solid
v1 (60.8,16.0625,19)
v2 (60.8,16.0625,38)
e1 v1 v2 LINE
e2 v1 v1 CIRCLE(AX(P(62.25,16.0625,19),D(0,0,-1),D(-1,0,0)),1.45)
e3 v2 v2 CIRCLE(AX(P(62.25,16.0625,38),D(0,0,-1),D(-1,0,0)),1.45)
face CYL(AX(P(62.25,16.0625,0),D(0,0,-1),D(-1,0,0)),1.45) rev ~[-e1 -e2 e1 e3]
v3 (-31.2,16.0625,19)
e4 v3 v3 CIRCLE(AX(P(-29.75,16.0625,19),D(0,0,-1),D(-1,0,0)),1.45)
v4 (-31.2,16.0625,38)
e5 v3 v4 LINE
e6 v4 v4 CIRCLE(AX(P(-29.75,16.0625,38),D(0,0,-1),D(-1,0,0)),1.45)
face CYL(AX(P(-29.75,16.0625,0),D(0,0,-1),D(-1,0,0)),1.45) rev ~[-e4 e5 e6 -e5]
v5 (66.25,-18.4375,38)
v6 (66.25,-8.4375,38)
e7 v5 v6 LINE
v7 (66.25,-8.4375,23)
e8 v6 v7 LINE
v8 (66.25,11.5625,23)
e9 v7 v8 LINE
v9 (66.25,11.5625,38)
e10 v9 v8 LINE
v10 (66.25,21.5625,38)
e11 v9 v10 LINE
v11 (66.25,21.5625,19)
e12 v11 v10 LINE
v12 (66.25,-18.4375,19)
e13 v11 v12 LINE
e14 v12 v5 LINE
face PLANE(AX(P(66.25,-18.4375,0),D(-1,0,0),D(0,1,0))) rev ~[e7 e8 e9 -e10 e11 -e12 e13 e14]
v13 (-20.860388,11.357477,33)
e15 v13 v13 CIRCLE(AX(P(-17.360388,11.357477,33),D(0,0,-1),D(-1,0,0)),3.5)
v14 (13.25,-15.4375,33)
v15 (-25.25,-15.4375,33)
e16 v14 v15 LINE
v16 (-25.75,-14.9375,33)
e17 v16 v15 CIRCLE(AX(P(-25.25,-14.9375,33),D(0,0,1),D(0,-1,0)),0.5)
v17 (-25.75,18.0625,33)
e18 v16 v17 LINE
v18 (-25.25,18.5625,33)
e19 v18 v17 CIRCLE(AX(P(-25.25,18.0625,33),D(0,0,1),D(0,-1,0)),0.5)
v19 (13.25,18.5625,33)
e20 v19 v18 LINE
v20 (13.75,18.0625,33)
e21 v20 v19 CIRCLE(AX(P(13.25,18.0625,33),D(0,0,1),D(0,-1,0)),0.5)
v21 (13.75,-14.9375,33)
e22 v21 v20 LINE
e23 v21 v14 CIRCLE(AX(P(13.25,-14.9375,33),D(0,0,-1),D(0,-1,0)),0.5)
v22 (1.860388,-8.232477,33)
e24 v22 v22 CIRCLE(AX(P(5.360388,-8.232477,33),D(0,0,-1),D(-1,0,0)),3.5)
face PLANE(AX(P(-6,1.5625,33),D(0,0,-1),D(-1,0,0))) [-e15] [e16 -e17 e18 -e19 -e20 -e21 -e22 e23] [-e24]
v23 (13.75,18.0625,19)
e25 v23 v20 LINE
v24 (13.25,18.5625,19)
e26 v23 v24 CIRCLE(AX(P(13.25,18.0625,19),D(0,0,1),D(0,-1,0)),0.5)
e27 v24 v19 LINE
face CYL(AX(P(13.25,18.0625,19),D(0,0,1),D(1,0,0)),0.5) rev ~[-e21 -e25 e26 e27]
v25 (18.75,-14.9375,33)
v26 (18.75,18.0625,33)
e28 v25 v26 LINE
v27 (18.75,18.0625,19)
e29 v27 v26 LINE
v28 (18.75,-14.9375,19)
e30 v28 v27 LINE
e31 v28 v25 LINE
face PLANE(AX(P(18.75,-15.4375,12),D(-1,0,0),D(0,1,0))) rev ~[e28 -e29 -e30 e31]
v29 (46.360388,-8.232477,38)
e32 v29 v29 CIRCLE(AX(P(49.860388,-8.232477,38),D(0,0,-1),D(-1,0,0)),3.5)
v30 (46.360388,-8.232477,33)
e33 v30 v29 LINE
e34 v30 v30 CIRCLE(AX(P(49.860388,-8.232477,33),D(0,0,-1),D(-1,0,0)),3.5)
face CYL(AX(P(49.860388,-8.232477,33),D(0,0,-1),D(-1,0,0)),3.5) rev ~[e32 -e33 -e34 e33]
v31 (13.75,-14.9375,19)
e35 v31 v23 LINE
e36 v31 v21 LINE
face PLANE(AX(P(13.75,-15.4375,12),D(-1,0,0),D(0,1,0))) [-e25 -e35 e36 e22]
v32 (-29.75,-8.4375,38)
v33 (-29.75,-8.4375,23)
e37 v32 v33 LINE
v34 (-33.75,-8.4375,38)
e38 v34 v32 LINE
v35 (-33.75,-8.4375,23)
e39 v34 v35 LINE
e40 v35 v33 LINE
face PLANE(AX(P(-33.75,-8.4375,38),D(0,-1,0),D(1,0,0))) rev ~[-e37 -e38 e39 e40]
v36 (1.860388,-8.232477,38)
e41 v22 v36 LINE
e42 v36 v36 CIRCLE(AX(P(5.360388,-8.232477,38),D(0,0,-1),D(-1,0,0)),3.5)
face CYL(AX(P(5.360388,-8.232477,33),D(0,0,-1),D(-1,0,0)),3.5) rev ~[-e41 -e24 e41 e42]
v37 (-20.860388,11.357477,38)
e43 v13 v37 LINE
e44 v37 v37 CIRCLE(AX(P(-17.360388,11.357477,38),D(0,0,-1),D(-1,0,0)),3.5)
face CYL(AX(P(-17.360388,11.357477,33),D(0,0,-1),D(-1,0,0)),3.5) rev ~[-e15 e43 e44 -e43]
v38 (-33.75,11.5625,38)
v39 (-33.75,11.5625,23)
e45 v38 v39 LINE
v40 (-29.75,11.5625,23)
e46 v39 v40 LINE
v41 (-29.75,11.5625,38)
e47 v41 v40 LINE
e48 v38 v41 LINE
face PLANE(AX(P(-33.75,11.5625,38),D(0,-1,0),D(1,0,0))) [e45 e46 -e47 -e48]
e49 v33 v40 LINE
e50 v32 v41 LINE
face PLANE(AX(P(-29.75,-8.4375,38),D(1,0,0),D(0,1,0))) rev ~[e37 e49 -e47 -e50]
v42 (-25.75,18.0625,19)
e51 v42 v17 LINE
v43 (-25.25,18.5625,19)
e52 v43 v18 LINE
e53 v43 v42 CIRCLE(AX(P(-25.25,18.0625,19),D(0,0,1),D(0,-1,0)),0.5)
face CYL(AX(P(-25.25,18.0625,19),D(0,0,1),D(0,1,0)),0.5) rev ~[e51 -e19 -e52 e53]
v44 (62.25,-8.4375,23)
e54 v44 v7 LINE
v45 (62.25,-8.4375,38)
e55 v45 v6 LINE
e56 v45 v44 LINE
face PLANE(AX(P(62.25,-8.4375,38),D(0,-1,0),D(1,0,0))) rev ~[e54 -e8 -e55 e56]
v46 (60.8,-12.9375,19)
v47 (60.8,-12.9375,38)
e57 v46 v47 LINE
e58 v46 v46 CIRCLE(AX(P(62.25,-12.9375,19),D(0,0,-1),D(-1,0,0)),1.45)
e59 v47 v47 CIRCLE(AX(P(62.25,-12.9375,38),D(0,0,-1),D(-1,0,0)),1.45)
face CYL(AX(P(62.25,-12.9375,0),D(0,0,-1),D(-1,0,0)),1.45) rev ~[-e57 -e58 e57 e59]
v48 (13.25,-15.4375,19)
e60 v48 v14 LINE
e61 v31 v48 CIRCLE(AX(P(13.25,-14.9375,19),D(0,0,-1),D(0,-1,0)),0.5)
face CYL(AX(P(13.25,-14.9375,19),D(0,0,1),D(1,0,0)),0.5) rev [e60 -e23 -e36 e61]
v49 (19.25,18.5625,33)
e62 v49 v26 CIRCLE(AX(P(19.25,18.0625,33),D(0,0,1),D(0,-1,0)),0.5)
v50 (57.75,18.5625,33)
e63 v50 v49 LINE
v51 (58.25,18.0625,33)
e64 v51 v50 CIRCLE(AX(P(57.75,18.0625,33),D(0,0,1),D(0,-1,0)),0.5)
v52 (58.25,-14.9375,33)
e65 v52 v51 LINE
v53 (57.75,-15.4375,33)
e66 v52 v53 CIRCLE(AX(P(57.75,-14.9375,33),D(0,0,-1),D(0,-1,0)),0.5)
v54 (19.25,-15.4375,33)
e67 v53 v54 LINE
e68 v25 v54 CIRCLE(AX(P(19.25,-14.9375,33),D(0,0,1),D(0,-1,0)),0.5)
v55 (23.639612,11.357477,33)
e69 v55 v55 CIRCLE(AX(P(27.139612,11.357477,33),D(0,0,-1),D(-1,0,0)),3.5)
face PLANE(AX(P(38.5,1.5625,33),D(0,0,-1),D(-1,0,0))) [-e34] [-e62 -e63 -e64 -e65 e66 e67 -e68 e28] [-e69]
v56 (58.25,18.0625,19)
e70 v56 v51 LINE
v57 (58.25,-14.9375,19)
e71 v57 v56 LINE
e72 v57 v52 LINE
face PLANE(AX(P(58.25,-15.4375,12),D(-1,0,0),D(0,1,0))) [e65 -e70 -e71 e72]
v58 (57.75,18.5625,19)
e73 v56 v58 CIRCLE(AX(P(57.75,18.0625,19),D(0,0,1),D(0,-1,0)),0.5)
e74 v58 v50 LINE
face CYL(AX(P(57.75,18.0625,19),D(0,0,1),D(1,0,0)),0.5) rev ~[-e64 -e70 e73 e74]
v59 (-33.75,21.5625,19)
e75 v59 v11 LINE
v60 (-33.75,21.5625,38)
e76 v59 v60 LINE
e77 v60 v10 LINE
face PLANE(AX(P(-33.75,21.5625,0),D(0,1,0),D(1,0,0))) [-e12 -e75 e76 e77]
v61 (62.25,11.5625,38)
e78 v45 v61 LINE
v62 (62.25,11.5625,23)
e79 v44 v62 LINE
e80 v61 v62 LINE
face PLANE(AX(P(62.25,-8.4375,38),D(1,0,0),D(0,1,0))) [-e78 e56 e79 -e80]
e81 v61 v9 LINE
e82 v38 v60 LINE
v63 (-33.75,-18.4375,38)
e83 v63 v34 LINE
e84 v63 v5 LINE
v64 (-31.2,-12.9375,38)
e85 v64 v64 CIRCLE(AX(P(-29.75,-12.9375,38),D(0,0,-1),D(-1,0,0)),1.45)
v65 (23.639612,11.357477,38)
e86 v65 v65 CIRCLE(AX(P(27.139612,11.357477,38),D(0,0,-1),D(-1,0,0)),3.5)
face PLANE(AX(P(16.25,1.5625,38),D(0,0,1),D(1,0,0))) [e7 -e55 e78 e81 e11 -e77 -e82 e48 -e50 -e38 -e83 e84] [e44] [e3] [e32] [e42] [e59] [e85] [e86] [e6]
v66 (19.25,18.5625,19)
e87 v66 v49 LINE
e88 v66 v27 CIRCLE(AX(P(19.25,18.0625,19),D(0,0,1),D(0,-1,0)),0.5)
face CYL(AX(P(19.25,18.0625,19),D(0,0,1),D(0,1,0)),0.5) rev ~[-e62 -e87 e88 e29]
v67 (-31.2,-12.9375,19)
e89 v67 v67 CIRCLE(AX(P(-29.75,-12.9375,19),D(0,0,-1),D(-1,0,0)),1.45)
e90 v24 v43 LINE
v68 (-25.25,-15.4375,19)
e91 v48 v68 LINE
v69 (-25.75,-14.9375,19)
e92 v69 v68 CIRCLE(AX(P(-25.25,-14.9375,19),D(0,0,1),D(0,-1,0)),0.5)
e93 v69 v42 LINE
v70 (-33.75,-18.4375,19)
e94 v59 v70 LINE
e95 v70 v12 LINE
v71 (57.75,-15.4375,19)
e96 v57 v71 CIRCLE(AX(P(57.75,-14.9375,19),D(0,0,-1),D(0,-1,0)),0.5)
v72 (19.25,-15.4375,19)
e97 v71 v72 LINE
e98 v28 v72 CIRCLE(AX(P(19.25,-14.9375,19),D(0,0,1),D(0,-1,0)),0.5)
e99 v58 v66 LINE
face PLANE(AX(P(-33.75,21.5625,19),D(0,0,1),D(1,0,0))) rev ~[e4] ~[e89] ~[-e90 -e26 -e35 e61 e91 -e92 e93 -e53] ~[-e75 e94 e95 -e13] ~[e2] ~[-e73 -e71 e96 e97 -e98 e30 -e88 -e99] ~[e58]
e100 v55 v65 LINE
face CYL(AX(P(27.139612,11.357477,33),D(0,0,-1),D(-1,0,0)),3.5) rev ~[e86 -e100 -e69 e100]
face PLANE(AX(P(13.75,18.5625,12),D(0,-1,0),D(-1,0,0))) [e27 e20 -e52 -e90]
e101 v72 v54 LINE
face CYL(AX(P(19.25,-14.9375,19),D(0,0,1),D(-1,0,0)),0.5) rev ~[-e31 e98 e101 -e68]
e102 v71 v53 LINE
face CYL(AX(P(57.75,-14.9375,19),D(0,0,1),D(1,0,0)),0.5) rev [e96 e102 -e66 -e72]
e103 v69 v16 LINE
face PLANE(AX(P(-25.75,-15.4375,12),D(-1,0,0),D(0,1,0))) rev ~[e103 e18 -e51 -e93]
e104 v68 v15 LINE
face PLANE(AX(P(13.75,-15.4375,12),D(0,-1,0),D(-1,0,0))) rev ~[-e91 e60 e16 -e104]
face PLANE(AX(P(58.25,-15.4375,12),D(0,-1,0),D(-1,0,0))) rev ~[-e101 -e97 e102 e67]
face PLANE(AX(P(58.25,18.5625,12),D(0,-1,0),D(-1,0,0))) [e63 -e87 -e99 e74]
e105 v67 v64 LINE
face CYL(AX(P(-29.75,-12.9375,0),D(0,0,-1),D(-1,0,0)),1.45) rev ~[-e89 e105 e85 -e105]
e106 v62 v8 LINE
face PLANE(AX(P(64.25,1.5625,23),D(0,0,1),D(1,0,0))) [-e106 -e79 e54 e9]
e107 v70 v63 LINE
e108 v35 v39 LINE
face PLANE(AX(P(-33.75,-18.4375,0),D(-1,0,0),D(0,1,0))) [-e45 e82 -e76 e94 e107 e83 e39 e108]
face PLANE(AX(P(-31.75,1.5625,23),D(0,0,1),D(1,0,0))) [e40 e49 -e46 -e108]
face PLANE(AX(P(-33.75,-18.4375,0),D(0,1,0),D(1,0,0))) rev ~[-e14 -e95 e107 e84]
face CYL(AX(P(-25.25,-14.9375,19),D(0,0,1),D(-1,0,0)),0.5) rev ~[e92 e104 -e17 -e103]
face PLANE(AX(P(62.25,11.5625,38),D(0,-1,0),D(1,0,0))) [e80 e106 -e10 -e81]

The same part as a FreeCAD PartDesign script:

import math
import FreeCAD as App
import Part
import Sketcher

V = App.Vector
Q = App.Units.Quantity


def edges_at(feature, points):
    """Names of the edges that pass closest to the given points."""
    edges = feature.Shape.Edges
    near = lambda p: min(range(len(edges)), key=lambda i: edges[i].distToShape(Part.Vertex(*p))[0])
    return sorted({f"Edge{near(p) + 1}" for p in points})


def add_polygon(sketch, points):
    """Adds a closed chain of lines whose ends are joined by coincident constraints."""
    first, n = sketch.GeometryCount, len(points)
    for a, b in zip(points, points[1:] + points[:1]):
        sketch.addGeometry(Part.LineSegment(App.Vector(*a, 0), App.Vector(*b, 0)), False)
    for i in range(n):
        sketch.addConstraint(Sketcher.Constraint("Coincident", first + i, 2, first + (i + 1) % n, 1))

doc = App.newDocument("Part")
body = doc.addObject("PartDesign::Body", "Body")

# Sketch on XY plane
sketch1 = doc.addObject("Sketcher::SketchObject", "Sketch")
body.addObject(sketch1)
sketch1.AttachmentSupport = (doc.XY_Plane, [""])
sketch1.MapMode = "FlatFace"
add_polygon(sketch1, [(-33.75, 21.5625), (-33.75, -18.4375), (66.25, -18.4375), (66.25, 21.5625)])  # lines 0-3
sketch1.addConstraint([
    Sketcher.Constraint("Vertical", 0),
    Sketcher.Constraint("Horizontal", 1),
    Sketcher.Constraint("Vertical", 2),
    Sketcher.Constraint("Horizontal", 3),
    Sketcher.Constraint("DistanceX", 1, 1, 1, 2, Q("100 mm")),
    Sketcher.Constraint("DistanceY", 0, 2, 0, 1, Q("40 mm")),
    Sketcher.Constraint("DistanceX", 0, 2, -1, 1, Q("33.75 mm")),
    Sketcher.Constraint("DistanceY", 0, 2, -1, 1, Q("18.4375 mm")),
])
pad1 = doc.addObject("PartDesign::Pad", "Pad")
body.addObject(pad1)
pad1.Profile = sketch1
pad1.Length = 38

# Sketch on XY plane
sketch2 = doc.addObject("Sketcher::SketchObject", "Sketch001")
body.addObject(sketch2)
sketch2.AttachmentSupport = (doc.XY_Plane, [""])
sketch2.MapMode = "FlatFace"
sketch2.AttachmentOffset = App.Placement(V(0, 0, 12), App.Rotation())
add_polygon(sketch2, [(58.25, 18.5625), (58.25, -15.4375), (18.75, -15.4375), (18.75, 18.5625)])  # lines 0-3
add_polygon(sketch2, [(13.75, 18.5625), (13.75, -15.4375), (-25.75, -15.4375), (-25.75, 18.5625)])  # lines 4-7
sketch2.addConstraint([
    Sketcher.Constraint("Vertical", 0),
    Sketcher.Constraint("Horizontal", 1),
    Sketcher.Constraint("Vertical", 2),
    Sketcher.Constraint("Horizontal", 3),
    Sketcher.Constraint("Vertical", 4),
    Sketcher.Constraint("Horizontal", 5),
    Sketcher.Constraint("Vertical", 6),
    Sketcher.Constraint("Horizontal", 7),
    Sketcher.Constraint("Horizontal", 1, 2, 4, 2),
    Sketcher.Constraint("Horizontal", 3, 2, 6, 2),
    Sketcher.Constraint("Equal", 3, 5),
    Sketcher.Constraint("DistanceY", 0, 2, 0, 1, Q("34 mm")),
    Sketcher.Constraint("DistanceX", 1, 2, 1, 1, Q("39.5 mm")),
    Sketcher.Constraint("DistanceX", 4, 2, 1, 2, Q("5 mm")),
    Sketcher.Constraint("DistanceX", -1, 1, 0, 2, Q("58.25 mm")),
    Sketcher.Constraint("DistanceY", 0, 2, -1, 1, Q("15.4375 mm")),
])
pocket1 = doc.addObject("PartDesign::Pocket", "Pocket")
body.addObject(pocket1)
pocket1.Profile = sketch2
pocket1.Length = 21
pocket1.Reversed = True

# Sketch on XY plane
sketch3 = doc.addObject("Sketcher::SketchObject", "Sketch002")
body.addObject(sketch3)
sketch3.AttachmentSupport = (doc.XY_Plane, [""])
sketch3.MapMode = "FlatFace"
sketch3.addGeometry([
    Part.ArcOfCircle(Part.Circle(V(14.794365, 41.486978, 0), V(0, 0, 1), 58.962482), math.radians(-132.550337), math.radians(-42.550337)),
    Part.ArcOfCircle(Part.Circle(V(-19.615092, 4.001815, 0), V(0, 0, 1), 8.078809), math.radians(47.449663), math.radians(227.449663)),
    Part.ArcOfCircle(Part.Circle(V(14.794365, 41.486978, 0), V(0, 0, 1), 42.804864), math.radians(-132.550337), math.radians(-42.550337)),
    Part.ArcOfCircle(Part.Circle(V(52.279528, 7.077521, 0), V(0, 0, 1), 8.078809), math.radians(-42.550337), math.radians(137.449663)),
], False)
sketch3.addConstraint([
    Sketcher.Constraint("Tangent", 0, 1, 1, 2),
    Sketcher.Constraint("Tangent", 1, 1, 2, 1),
    Sketcher.Constraint("Tangent", 2, 2, 3, 2),
    Sketcher.Constraint("Tangent", 3, 1, 0, 2),
    Sketcher.Constraint("Coincident", 2, 3, 0, 3),
    Sketcher.Constraint("Radius", 0, Q("58.962482 mm")),
    Sketcher.Constraint("Radius", 1, Q("8.078809 mm")),
    Sketcher.Constraint("DistanceX", 1, 1, 2, 2, Q("60.4799 mm")),
    Sketcher.Constraint("DistanceY", 1, 3, 2, 2, Q("8.5389 mm")),
    Sketcher.Constraint("DistanceY", -1, 1, 3, 3, Q("7.077521 mm")),
    Sketcher.Constraint("DistanceX", -1, 1, 0, 3, Q("14.794365 mm")),
])
pocket2 = doc.addObject("PartDesign::Pocket", "Pocket001")
body.addObject(pocket2)
pocket2.Profile = sketch3
pocket2.Length = 9
pocket2.Reversed = True

# Sketch on XY plane
sketch4 = doc.addObject("Sketcher::SketchObject", "Sketch003")
body.addObject(sketch4)
sketch4.AttachmentSupport = (doc.XY_Plane, [""])
sketch4.MapMode = "FlatFace"
sketch4.addGeometry(Part.Circle(V(62.25, 16.0625, 0), V(0, 0, 1), 1.45), False)
sketch4.addConstraint([
    Sketcher.Constraint("Diameter", 0, Q("2.9 mm")),
    Sketcher.Constraint("DistanceX", -1, 1, 0, 3, Q("62.25 mm")),
    Sketcher.Constraint("DistanceY", -1, 1, 0, 3, Q("16.0625 mm")),
])
pocket3 = doc.addObject("PartDesign::Pocket", "Pocket002")
body.addObject(pocket3)
pocket3.Profile = sketch4
pocket3.Type = "UpToFirst"
pocket3.Reversed = True

# Sketch on XY plane
sketch5 = doc.addObject("Sketcher::SketchObject", "Sketch004")
body.addObject(sketch5)
sketch5.AttachmentSupport = (doc.XY_Plane, [""])
sketch5.MapMode = "FlatFace"
sketch5.addGeometry(Part.Circle(V(62.25, -12.9375, 0), V(0, 0, 1), 1.45), False)
sketch5.addConstraint([
    Sketcher.Constraint("Diameter", 0, Q("2.9 mm")),
    Sketcher.Constraint("DistanceX", -1, 1, 0, 3, Q("62.25 mm")),
    Sketcher.Constraint("DistanceY", 0, 3, -1, 1, Q("12.9375 mm")),
])
pocket4 = doc.addObject("PartDesign::Pocket", "Pocket003")
body.addObject(pocket4)
pocket4.Profile = sketch5
pocket4.Type = "UpToFirst"
pocket4.Reversed = True

# Sketch on XY plane
sketch6 = doc.addObject("Sketcher::SketchObject", "Sketch005")
body.addObject(sketch6)
sketch6.AttachmentSupport = (doc.XY_Plane, [""])
sketch6.MapMode = "FlatFace"
sketch6.addGeometry(Part.Circle(V(-29.75, 16.0625, 0), V(0, 0, 1), 1.45), False)
sketch6.addConstraint([
    Sketcher.Constraint("Diameter", 0, Q("2.9 mm")),
    Sketcher.Constraint("DistanceX", 0, 3, -1, 1, Q("29.75 mm")),
    Sketcher.Constraint("DistanceY", -1, 1, 0, 3, Q("16.0625 mm")),
])
pocket5 = doc.addObject("PartDesign::Pocket", "Pocket004")
body.addObject(pocket5)
pocket5.Profile = sketch6
pocket5.Type = "UpToFirst"
pocket5.Reversed = True

# Sketch on XY plane
sketch7 = doc.addObject("Sketcher::SketchObject", "Sketch006")
body.addObject(sketch7)
sketch7.AttachmentSupport = (doc.XY_Plane, [""])
sketch7.MapMode = "FlatFace"
sketch7.addGeometry(Part.Circle(V(-29.75, -12.9375, 0), V(0, 0, 1), 1.45), False)
sketch7.addConstraint([
    Sketcher.Constraint("Diameter", 0, Q("2.9 mm")),
    Sketcher.Constraint("DistanceX", 0, 3, -1, 1, Q("29.75 mm")),
    Sketcher.Constraint("DistanceY", 0, 3, -1, 1, Q("12.9375 mm")),
])
pocket6 = doc.addObject("PartDesign::Pocket", "Pocket005")
body.addObject(pocket6)
pocket6.Profile = sketch7
pocket6.Type = "UpToFirst"
pocket6.Reversed = True

# Sketch on XZ plane
sketch8 = doc.addObject("Sketcher::SketchObject", "Sketch007")
body.addObject(sketch8)
sketch8.AttachmentSupport = (doc.XZ_Plane, [""])
sketch8.MapMode = "FlatFace"
sketch8.AttachmentOffset = App.Placement(V(0, 0, -21.5625), App.Rotation())
add_polygon(sketch8, [(-33.75, 0), (-33.75, 19), (66.25, 19), (66.25, 0)])  # lines 0-3
sketch8.addConstraint([
    Sketcher.Constraint("Vertical", 0),
    Sketcher.Constraint("Horizontal", 1),
    Sketcher.Constraint("Vertical", 2),
    Sketcher.Constraint("Horizontal", 3),
    Sketcher.Constraint("PointOnObject", 2, 2, -1),
    Sketcher.Constraint("DistanceX", 1, 1, 1, 2, Q("100 mm")),
    Sketcher.Constraint("DistanceY", 0, 1, 0, 2, Q("19 mm")),
    Sketcher.Constraint("DistanceX", 0, 2, -1, 1, Q("33.75 mm")),
])
pocket7 = doc.addObject("PartDesign::Pocket", "Pocket006")
body.addObject(pocket7)
pocket7.Profile = sketch8
pocket7.Type = "ThroughAll"
pocket7.Reversed = True
doc.recompute()

fillet = doc.addObject("PartDesign::Fillet", "Fillet")
body.addObject(fillet)
fillet.Base = (pocket7, edges_at(pocket7, [
    (58.25, 18.562, 26),
    (18.75, 18.562, 26),
    (18.75, -15.438, 26),
    (58.25, -15.438, 26),
    (13.75, 18.562, 26),
    (-25.75, 18.562, 26),
    (-25.75, -15.438, 26),
    (13.75, -15.438, 26),
]))
fillet.Radius = 0.5

# Sketch on XY plane
sketch9 = doc.addObject("Sketcher::SketchObject", "Sketch008")
body.addObject(sketch9)
sketch9.AttachmentSupport = (doc.XY_Plane, [""])
sketch9.MapMode = "FlatFace"
sketch9.AttachmentOffset = App.Placement(V(0, 0, 33), App.Rotation())
sketch9.addGeometry(Part.Circle(V(49.860388, -8.232477, 0), V(0, 0, 1), 3.5), False)
sketch9.addConstraint([
    Sketcher.Constraint("Diameter", 0, Q("7 mm")),
    Sketcher.Constraint("DistanceX", -1, 1, 0, 3, Q("49.860388 mm")),
    Sketcher.Constraint("DistanceY", 0, 3, -1, 1, Q("8.232477 mm")),
])
pocket8 = doc.addObject("PartDesign::Pocket", "Pocket007")
body.addObject(pocket8)
pocket8.Profile = sketch9
pocket8.Type = "UpToFirst"
pocket8.Reversed = True

# Sketch on XY plane
sketch10 = doc.addObject("Sketcher::SketchObject", "Sketch009")
body.addObject(sketch10)
sketch10.AttachmentSupport = (doc.XY_Plane, [""])
sketch10.MapMode = "FlatFace"
sketch10.AttachmentOffset = App.Placement(V(0, 0, 33), App.Rotation())
sketch10.addGeometry(Part.Circle(V(27.139612, 11.357477, 0), V(0, 0, 1), 3.5), False)
sketch10.addConstraint([
    Sketcher.Constraint("Diameter", 0, Q("7 mm")),
    Sketcher.Constraint("DistanceX", -1, 1, 0, 3, Q("27.139612 mm")),
    Sketcher.Constraint("DistanceY", -1, 1, 0, 3, Q("11.357477 mm")),
])
pocket9 = doc.addObject("PartDesign::Pocket", "Pocket008")
body.addObject(pocket9)
pocket9.Profile = sketch10
pocket9.Type = "UpToFirst"
pocket9.Reversed = True

# Sketch on XY plane
sketch11 = doc.addObject("Sketcher::SketchObject", "Sketch010")
body.addObject(sketch11)
sketch11.AttachmentSupport = (doc.XY_Plane, [""])
sketch11.MapMode = "FlatFace"
sketch11.AttachmentOffset = App.Placement(V(0, 0, 33), App.Rotation())
sketch11.addGeometry(Part.Circle(V(5.360388, -8.232477, 0), V(0, 0, 1), 3.5), False)
sketch11.addConstraint([
    Sketcher.Constraint("Diameter", 0, Q("7 mm")),
    Sketcher.Constraint("DistanceX", -1, 1, 0, 3, Q("5.360388 mm")),
    Sketcher.Constraint("DistanceY", 0, 3, -1, 1, Q("8.232477 mm")),
])
pocket10 = doc.addObject("PartDesign::Pocket", "Pocket009")
body.addObject(pocket10)
pocket10.Profile = sketch11
pocket10.Type = "UpToFirst"
pocket10.Reversed = True

# Sketch on XY plane
sketch12 = doc.addObject("Sketcher::SketchObject", "Sketch011")
body.addObject(sketch12)
sketch12.AttachmentSupport = (doc.XY_Plane, [""])
sketch12.MapMode = "FlatFace"
sketch12.AttachmentOffset = App.Placement(V(0, 0, 33), App.Rotation())
sketch12.addGeometry(Part.Circle(V(-17.360388, 11.357477, 0), V(0, 0, 1), 3.5), False)
sketch12.addConstraint([
    Sketcher.Constraint("Diameter", 0, Q("7 mm")),
    Sketcher.Constraint("DistanceX", 0, 3, -1, 1, Q("17.360388 mm")),
    Sketcher.Constraint("DistanceY", -1, 1, 0, 3, Q("11.357477 mm")),
])
pocket11 = doc.addObject("PartDesign::Pocket", "Pocket010")
body.addObject(pocket11)
pocket11.Profile = sketch12
pocket11.Type = "UpToFirst"
pocket11.Reversed = True

# Sketch on XY plane
sketch13 = doc.addObject("Sketcher::SketchObject", "Sketch012")
body.addObject(sketch13)
sketch13.AttachmentSupport = (doc.XY_Plane, [""])
sketch13.MapMode = "FlatFace"
sketch13.AttachmentOffset = App.Placement(V(0, 0, 38), App.Rotation())
add_polygon(sketch13, [(-33.75, 11.5625), (-33.75, -8.4375), (-29.75, -8.4375), (-29.75, 11.5625)])  # lines 0-3
add_polygon(sketch13, [(62.25, 11.5625), (62.25, -8.4375), (66.25, -8.4375), (66.25, 11.5625)])  # lines 4-7
sketch13.addConstraint([
    Sketcher.Constraint("Vertical", 0),
    Sketcher.Constraint("Horizontal", 1),
    Sketcher.Constraint("Vertical", 2),
    Sketcher.Constraint("Horizontal", 3),
    Sketcher.Constraint("Vertical", 4),
    Sketcher.Constraint("Horizontal", 5),
    Sketcher.Constraint("Vertical", 6),
    Sketcher.Constraint("Horizontal", 7),
    Sketcher.Constraint("Horizontal", 1, 2, 4, 2),
    Sketcher.Constraint("Horizontal", 3, 2, 6, 2),
    Sketcher.Constraint("Equal", 3, 5),
    Sketcher.Constraint("DistanceX", 1, 1, 1, 2, Q("4 mm")),
    Sketcher.Constraint("DistanceY", 0, 2, 0, 1, Q("20 mm")),
    Sketcher.Constraint("DistanceX", 1, 2, 4, 2, Q("92 mm")),
    Sketcher.Constraint("DistanceX", 0, 2, -1, 1, Q("33.75 mm")),
    Sketcher.Constraint("DistanceY", 0, 2, -1, 1, Q("8.4375 mm")),
])
pocket12 = doc.addObject("PartDesign::Pocket", "Pocket011")
body.addObject(pocket12)
pocket12.Profile = sketch13
pocket12.Length = 15

doc.recompute()
